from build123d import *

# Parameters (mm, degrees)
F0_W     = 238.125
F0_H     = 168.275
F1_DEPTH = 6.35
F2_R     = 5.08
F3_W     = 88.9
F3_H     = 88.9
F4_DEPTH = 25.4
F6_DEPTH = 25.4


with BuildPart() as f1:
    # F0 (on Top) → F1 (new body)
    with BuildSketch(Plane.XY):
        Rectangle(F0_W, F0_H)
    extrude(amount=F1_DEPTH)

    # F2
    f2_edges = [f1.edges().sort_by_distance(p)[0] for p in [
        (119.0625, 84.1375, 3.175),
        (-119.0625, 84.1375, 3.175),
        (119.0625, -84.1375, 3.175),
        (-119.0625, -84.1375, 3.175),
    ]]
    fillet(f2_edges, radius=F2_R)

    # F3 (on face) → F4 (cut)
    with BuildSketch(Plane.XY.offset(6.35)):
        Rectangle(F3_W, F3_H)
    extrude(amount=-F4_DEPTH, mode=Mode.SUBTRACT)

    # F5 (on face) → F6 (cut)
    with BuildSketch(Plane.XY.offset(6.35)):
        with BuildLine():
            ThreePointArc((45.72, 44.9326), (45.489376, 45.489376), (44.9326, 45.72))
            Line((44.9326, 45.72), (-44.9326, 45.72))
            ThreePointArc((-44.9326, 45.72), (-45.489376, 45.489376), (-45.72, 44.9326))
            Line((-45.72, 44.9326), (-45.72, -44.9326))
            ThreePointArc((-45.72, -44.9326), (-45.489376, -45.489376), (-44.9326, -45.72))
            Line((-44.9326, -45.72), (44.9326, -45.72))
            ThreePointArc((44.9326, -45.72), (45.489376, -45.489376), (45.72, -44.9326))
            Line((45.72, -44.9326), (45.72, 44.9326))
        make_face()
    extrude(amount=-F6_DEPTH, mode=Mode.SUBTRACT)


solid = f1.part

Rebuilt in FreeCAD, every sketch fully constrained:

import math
import FreeCAD as App
import Part
import Sketcher

V = App.Vector
Q = App.Units.Quantity


def edges_at(feature, points):
    """Names of the edges that pass closest to the given points."""
    edges = feature.Shape.Edges
    near = lambda p: min(range(len(edges)), key=lambda i: edges[i].distToShape(Part.Vertex(*p))[0])
    return sorted({f"Edge{near(p) + 1}" for p in points})

doc = App.newDocument("Part")
body = doc.addObject("PartDesign::Body", "Body")

# Sketch on XY plane
sketch1 = body.newObject("Sketcher::SketchObject", "Sketch")
sketch1.AttachmentSupport = (doc.getObject("XY_Plane"), [""])
sketch1.MapMode = "FlatFace"
sketch1.addGeometry([
    Part.LineSegment(V(-119.0625, 84.1375, 0), V(-119.0625, -84.1375, 0)),
    Part.LineSegment(V(-119.0625, -84.1375, 0), V(119.0625, -84.1375, 0)),
    Part.LineSegment(V(119.0625, -84.1375, 0), V(119.0625, 84.1375, 0)),
    Part.LineSegment(V(119.0625, 84.1375, 0), V(-119.0625, 84.1375, 0)),
], False)
sketch1.addConstraint([
    Sketcher.Constraint("Coincident", 0, 2, 1, 1),
    Sketcher.Constraint("Coincident", 1, 2, 2, 1),
    Sketcher.Constraint("Coincident", 2, 2, 3, 1),
    Sketcher.Constraint("Coincident", 3, 2, 0, 1),
    Sketcher.Constraint("Vertical", 0),
    Sketcher.Constraint("Horizontal", 1),
    Sketcher.Constraint("Vertical", 2),
    Sketcher.Constraint("Horizontal", 3),
    Sketcher.Constraint("Symmetric", 0, 2, 2, 2, -1, 1),
    Sketcher.Constraint("DistanceX", 1, 1, 1, 2, Q("9.375 in")),
    Sketcher.Constraint("DistanceY", 0, 2, 0, 1, Q("6.625 in")),
])
pad1 = body.newObject("PartDesign::Pad", "Pad")
pad1.Profile = sketch1
pad1.Length = Q("0.25 in")
doc.recompute()

fillet = body.newObject("PartDesign::Fillet", "Fillet")
fillet.Base = (pad1, edges_at(pad1, [
    (119.062, 84.138, 3.175),
    (-119.062, 84.138, 3.175),
    (119.062, -84.138, 3.175),
    (-119.062, -84.138, 3.175),
]))
fillet.Radius = Q("0.2 in")

# Sketch on XY plane
sketch2 = body.newObject("Sketcher::SketchObject", "Sketch001")
sketch2.AttachmentSupport = (doc.getObject("XY_Plane"), [""])
sketch2.MapMode = "FlatFace"
sketch2.AttachmentOffset = App.Placement(V(0, 0, 0.25 * 25.4), App.Rotation())
sketch2.addGeometry([
    Part.LineSegment(V(-44.45, 44.45, 0), V(-44.45, -44.45, 0)),
    Part.LineSegment(V(-44.45, -44.45, 0), V(44.45, -44.45, 0)),
    Part.LineSegment(V(44.45, -44.45, 0), V(44.45, 44.45, 0)),
    Part.LineSegment(V(44.45, 44.45, 0), V(-44.45, 44.45, 0)),
], False)
sketch2.addConstraint([
    Sketcher.Constraint("Coincident", 0, 2, 1, 1),
    Sketcher.Constraint("Coincident", 1, 2, 2, 1),
    Sketcher.Constraint("Coincident", 2, 2, 3, 1),
    Sketcher.Constraint("Coincident", 3, 2, 0, 1),
    Sketcher.Constraint("Vertical", 0),
    Sketcher.Constraint("Horizontal", 1),
    Sketcher.Constraint("Vertical", 2),
    Sketcher.Constraint("Horizontal", 3),
    Sketcher.Constraint("Symmetric", 0, 2, 2, 2, -1, 1),
    Sketcher.Constraint("Equal", 3, 0),
    Sketcher.Constraint("DistanceX", 1, 1, 1, 2, Q("3.5 in")),
])
pocket1 = body.newObject("PartDesign::Pocket", "Pocket")
pocket1.Profile = sketch2
pocket1.Length = Q("1 in")

# Sketch on XY plane
sketch3 = body.newObject("Sketcher::SketchObject", "Sketch002")
sketch3.AttachmentSupport = (doc.getObject("XY_Plane"), [""])
sketch3.MapMode = "FlatFace"
sketch3.AttachmentOffset = App.Placement(V(0, 0, 0.25 * 25.4), App.Rotation())
sketch3.addGeometry([
    Part.ArcOfCircle(Part.Circle(V(44.9326, 44.9326, 0), V(0, 0, 1), 0.7874), math.radians(-0.00003), math.radians(90.00003)),  # 0
    Part.LineSegment(V(44.9326, 45.72, 0), V(-44.9326, 45.72, 0)),  # 1
    Part.ArcOfCircle(Part.Circle(V(-44.9326, 44.9326, 0), V(0, 0, 1), 0.7874), math.radians(89.99997), math.radians(180.00003)),  # 2
    Part.LineSegment(V(-45.72, 44.9326, 0), V(-45.72, -44.9326, 0)),  # 3
    Part.ArcOfCircle(Part.Circle(V(-44.9326, -44.9326, 0), V(0, 0, 1), 0.7874), math.radians(179.99997), math.radians(270.00003)),  # 4
    Part.LineSegment(V(-44.9326, -45.72, 0), V(44.9326, -45.72, 0)),  # 5
    Part.ArcOfCircle(Part.Circle(V(44.9326, -44.9326, 0), V(0, 0, 1), 0.7874), math.radians(-90.00003), math.radians(0.00003)),  # 6
    Part.LineSegment(V(45.72, -44.9326, 0), V(45.72, 44.9326, 0)),  # 7
], False)
sketch3.addConstraint([
    Sketcher.Constraint("Tangent", 0, 2, 1, 1),
    Sketcher.Constraint("Tangent", 1, 2, 2, 1),
    Sketcher.Constraint("Tangent", 2, 2, 3, 1),
    Sketcher.Constraint("Tangent", 3, 2, 4, 1),
    Sketcher.Constraint("Tangent", 4, 2, 5, 1),
    Sketcher.Constraint("Tangent", 5, 2, 6, 1),
    Sketcher.Constraint("Tangent", 6, 2, 7, 1),
    Sketcher.Constraint("Tangent", 7, 2, 0, 1),
    Sketcher.Constraint("Horizontal", 1),
    Sketcher.Constraint("Vertical", 3),
    Sketcher.Constraint("Horizontal", 5),
    Sketcher.Constraint("Vertical", 7),
    Sketcher.Constraint("Equal", 0, 2),
    Sketcher.Constraint("Equal", 2, 4),
    Sketcher.Constraint("Equal", 4, 6),
    Sketcher.Constraint("Symmetric", 0, 3, 4, 3, -1, 1),
    Sketcher.Constraint("Equal", 5, 3),
    Sketcher.Constraint("Radius", 0, Q("0.031 in")),
    Sketcher.Constraint("DistanceY", -1, 1, 0, 2, Q("1.8 in")),
])
pocket2 = body.newObject("PartDesign::Pocket", "Pocket001")
pocket2.Profile = sketch3
pocket2.Length = Q("1 in")

doc.recompute()
